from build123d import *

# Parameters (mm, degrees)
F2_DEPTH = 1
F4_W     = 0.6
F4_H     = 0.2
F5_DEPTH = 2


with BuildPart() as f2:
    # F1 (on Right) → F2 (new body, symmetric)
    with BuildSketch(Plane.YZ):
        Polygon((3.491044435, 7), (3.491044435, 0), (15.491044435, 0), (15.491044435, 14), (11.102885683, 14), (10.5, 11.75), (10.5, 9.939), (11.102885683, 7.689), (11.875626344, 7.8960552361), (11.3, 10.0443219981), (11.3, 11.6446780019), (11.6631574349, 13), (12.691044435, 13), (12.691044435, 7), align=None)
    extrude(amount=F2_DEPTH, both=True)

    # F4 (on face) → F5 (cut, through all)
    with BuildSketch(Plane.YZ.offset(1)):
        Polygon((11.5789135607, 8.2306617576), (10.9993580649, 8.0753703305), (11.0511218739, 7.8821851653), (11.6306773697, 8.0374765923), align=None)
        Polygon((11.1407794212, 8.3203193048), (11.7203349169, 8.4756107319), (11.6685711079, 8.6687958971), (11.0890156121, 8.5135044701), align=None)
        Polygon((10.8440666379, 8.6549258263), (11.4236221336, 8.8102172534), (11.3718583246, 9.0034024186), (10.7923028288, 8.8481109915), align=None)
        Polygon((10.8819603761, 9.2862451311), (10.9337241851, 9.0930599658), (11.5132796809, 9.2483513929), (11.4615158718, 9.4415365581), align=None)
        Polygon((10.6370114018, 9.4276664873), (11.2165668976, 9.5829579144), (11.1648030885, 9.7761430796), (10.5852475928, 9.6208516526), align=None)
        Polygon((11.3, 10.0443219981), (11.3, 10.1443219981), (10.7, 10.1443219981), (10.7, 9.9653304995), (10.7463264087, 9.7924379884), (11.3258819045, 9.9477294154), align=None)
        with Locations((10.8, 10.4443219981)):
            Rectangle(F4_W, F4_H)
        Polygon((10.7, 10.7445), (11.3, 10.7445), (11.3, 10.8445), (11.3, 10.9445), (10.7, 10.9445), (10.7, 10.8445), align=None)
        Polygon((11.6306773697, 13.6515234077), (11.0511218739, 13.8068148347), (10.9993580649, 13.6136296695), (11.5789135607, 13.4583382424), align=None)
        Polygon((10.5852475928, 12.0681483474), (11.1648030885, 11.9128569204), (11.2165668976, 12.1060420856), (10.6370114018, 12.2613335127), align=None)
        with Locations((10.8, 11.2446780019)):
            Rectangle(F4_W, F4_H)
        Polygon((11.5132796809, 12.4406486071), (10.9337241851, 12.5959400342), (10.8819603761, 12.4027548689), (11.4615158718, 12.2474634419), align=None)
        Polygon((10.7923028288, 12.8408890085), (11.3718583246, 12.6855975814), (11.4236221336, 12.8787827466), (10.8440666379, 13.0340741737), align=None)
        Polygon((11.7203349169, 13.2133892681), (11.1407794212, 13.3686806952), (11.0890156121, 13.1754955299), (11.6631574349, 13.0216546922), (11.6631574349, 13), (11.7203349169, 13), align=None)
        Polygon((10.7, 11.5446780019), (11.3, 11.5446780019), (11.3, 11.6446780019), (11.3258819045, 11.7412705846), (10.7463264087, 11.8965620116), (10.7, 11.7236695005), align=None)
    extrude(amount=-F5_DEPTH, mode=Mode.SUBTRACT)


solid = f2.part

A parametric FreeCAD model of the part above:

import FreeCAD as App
import Part
import Sketcher

V = App.Vector
Q = App.Units.Quantity


def add_polygon(sketch, points):
    """Adds a closed chain of lines whose ends are joined by coincident constraints."""
    first, n = sketch.GeometryCount, len(points)
    for a, b in zip(points, points[1:] + points[:1]):
        sketch.addGeometry(Part.LineSegment(App.Vector(*a, 0), App.Vector(*b, 0)), False)
    for i in range(n):
        sketch.addConstraint(Sketcher.Constraint("Coincident", first + i, 2, first + (i + 1) % n, 1))

doc = App.newDocument("Part")
body = doc.addObject("PartDesign::Body", "Body")

# Sketch on YZ plane
sketch1 = body.newObject("Sketcher::SketchObject", "Sketch")
sketch1.AttachmentSupport = (doc.getObject("YZ_Plane"), [""])
sketch1.MapMode = "FlatFace"
add_polygon(sketch1, [(3.5, 7), (3.5, 0), (15.5, 0), (15.5, 14), (11.1, 14), (10.5, 11.8), (10.5, 9.9), (11.1, 7.7), (11.9, 7.9), (11.3, 10), (11.3, 11.6), (11.7, 13), (12.7, 13), (12.7, 7)])  # lines 0-13
sketch1.addConstraint(Sketcher.Constraint("Vertical", 0))
sketch1.addConstraint(Sketcher.Constraint("Horizontal", 1))
sketch1.addConstraint(Sketcher.Constraint("Vertical", 2))
sketch1.addConstraint(Sketcher.Constraint("Horizontal", 3))
sketch1.addConstraint(Sketcher.Constraint("Vertical", 5))
sketch1.addConstraint(Sketcher.Constraint("Vertical", 9))
sketch1.addConstraint(Sketcher.Constraint("Horizontal", 11))
sketch1.addConstraint(Sketcher.Constraint("Vertical", 12))
sketch1.addConstraint(Sketcher.Constraint("Horizontal", 13))
sketch1.addConstraint(Sketcher.Constraint("PointOnObject", 0, 2, -1))
sketch1.addConstraint(Sketcher.Constraint("Perpendicular", 6, 7))
sketch1.addConstraint(Sketcher.Constraint("Perpendicular", 7, 8))
sketch1.addConstraint(Sketcher.Constraint("Parallel", 4, 10))
sketch1.addConstraint(Sketcher.Constraint("Vertical", 3, 2, 6, 2))
sketch1.addConstraint(Sketcher.Constraint("Equal", 4, 6))
sketch1.addConstraint(Sketcher.Constraint("DistanceX", 1, 1, 1, 2, 12.0))
sketch1.addConstraint(Sketcher.Constraint("DistanceY", 0, 2, 0, 1, 7.0))
sketch1.addConstraint(Sketcher.Constraint("DistanceY", 2, 1, 2, 2, 14.0))
sketch1.addConstraint(Sketcher.Constraint("DistanceY", 12, 2, 12, 1, 6.0))
sketch1.addConstraint(Sketcher.Constraint("Angle", 4, Q("-105 deg")))
sketch1.addConstraint(Sketcher.Constraint("DistanceX", 13, 2, 13, 1, 9.2))
sketch1.addConstraint(Sketcher.Constraint("Distance", 7, 0.8))
sketch1.addConstraint(Sketcher.Constraint("DistanceX", -1, 1, 4, 2, 10.5))
sketch1.addConstraint(Sketcher.Constraint("DistanceX", -1, 1, 8, 2, 11.3))
sketch1.addConstraint(Sketcher.Constraint("DistanceY", 5, 2, 5, 1, 1.811))
sketch1.addConstraint(Sketcher.Constraint("DistanceY", -1, 1, 4, 2, 11.75))
sketch1.addConstraint(Sketcher.Constraint("DistanceX", 3, 2, 3, 1, 4.388159))
sketch1.addConstraint(Sketcher.Constraint("DistanceX", 11, 1, 11, 2, 1.027887))
pad1 = body.newObject("PartDesign::Pad", "Pad")
pad1.Profile = sketch1
pad1.Length = 2
pad1.Midplane = True

# Sketch on YZ plane
sketch2 = body.newObject("Sketcher::SketchObject", "Sketch001")
sketch2.AttachmentSupport = (doc.getObject("YZ_Plane"), [""])
sketch2.MapMode = "FlatFace"
sketch2.AttachmentOffset = App.Placement(V(0, 0, 1), App.Rotation())
add_polygon(sketch2, [(11.579, 8.231), (10.999, 8.075), (11.051, 7.882), (11.631, 8.037)])  # lines 0-3
add_polygon(sketch2, [(11.141, 8.32), (11.72, 8.476), (11.669, 8.669), (11.089, 8.514)])  # lines 4-7
add_polygon(sketch2, [(10.844, 8.655), (11.424, 8.81), (11.372, 9.003), (10.792, 8.848)])  # lines 8-11
add_polygon(sketch2, [(10.882, 9.286), (10.934, 9.093), (11.513, 9.248), (11.462, 9.442)])  # lines 12-15
add_polygon(sketch2, [(10.637, 9.428), (11.217, 9.583), (11.165, 9.776), (10.585, 9.621)])  # lines 16-19
add_polygon(sketch2, [(11.3, 10.044), (11.3, 10.144), (10.7, 10.144), (10.7, 9.965), (10.746, 9.792), (11.326, 9.948)])  # lines 20-25
add_polygon(sketch2, [(10.5, 10.544), (10.5, 10.344), (11.1, 10.344), (11.1, 10.544)])  # lines 26-29
add_polygon(sketch2, [(10.7, 10.745), (11.3, 10.745), (11.3, 10.944), (10.7, 10.944)])  # lines 30-33
add_polygon(sketch2, [(11.631, 13.652), (11.051, 13.807), (10.999, 13.614), (11.579, 13.458)])  # lines 34-37
add_polygon(sketch2, [(10.585, 12.068), (11.165, 11.913), (11.217, 12.106), (10.637, 12.261)])  # lines 38-41
add_polygon(sketch2, [(10.5, 11.345), (10.5, 11.145), (11.1, 11.145), (11.1, 11.345)])  # lines 42-45
add_polygon(sketch2, [(11.513, 12.441), (10.934, 12.596), (10.882, 12.403), (11.462, 12.247)])  # lines 46-49
add_polygon(sketch2, [(10.792, 12.841), (11.372, 12.686), (11.424, 12.879), (10.844, 13.034)])  # lines 50-53
add_polygon(sketch2, [(11.72, 13.213), (11.141, 13.369), (11.089, 13.175), (11.663, 13.022), (11.663, 13), (11.72, 13)])  # lines 54-59
add_polygon(sketch2, [(10.7, 11.545), (11.3, 11.545), (11.3, 11.645), (11.326, 11.741), (10.746, 11.897), (10.7, 11.724)])  # lines 60-65
sketch2.addConstraint(Sketcher.Constraint("Vertical", 20))
sketch2.addConstraint(Sketcher.Constraint("Horizontal", 21))
sketch2.addConstraint(Sketcher.Constraint("Vertical", 22))
sketch2.addConstraint(Sketcher.Constraint("Vertical", 26))
sketch2.addConstraint(Sketcher.Constraint("Horizontal", 27))
sketch2.addConstraint(Sketcher.Constraint("Vertical", 28))
sketch2.addConstraint(Sketcher.Constraint("Horizontal", 29))
sketch2.addConstraint(Sketcher.Constraint("Horizontal", 30))
sketch2.addConstraint(Sketcher.Constraint("Vertical", 31))
sketch2.addConstraint(Sketcher.Constraint("Horizontal", 32))
sketch2.addConstraint(Sketcher.Constraint("Vertical", 33))
sketch2.addConstraint(Sketcher.Constraint("Vertical", 42))
sketch2.addConstraint(Sketcher.Constraint("Horizontal", 43))
sketch2.addConstraint(Sketcher.Constraint("Vertical", 44))
sketch2.addConstraint(Sketcher.Constraint("Horizontal", 45))
sketch2.addConstraint(Sketcher.Constraint("Vertical", 57))
sketch2.addConstraint(Sketcher.Constraint("Horizontal", 58))
sketch2.addConstraint(Sketcher.Constraint("Vertical", 59))
sketch2.addConstraint(Sketcher.Constraint("Horizontal", 60))
sketch2.addConstraint(Sketcher.Constraint("Vertical", 61))
sketch2.addConstraint(Sketcher.Constraint("Vertical", 65))
sketch2.addConstraint(Sketcher.Constraint("Perpendicular", 0, 1))
sketch2.addConstraint(Sketcher.Constraint("Perpendicular", 1, 2))
sketch2.addConstraint(Sketcher.Constraint("Perpendicular", 2, 3))
sketch2.addConstraint(Sketcher.Constraint("Perpendicular", 3, 4))
sketch2.addConstraint(Sketcher.Constraint("Perpendicular", 4, 5))
sketch2.addConstraint(Sketcher.Constraint("Perpendicular", 5, 6))
sketch2.addConstraint(Sketcher.Constraint("Perpendicular", 6, 7))
sketch2.addConstraint(Sketcher.Constraint("Perpendicular", 7, 8))
sketch2.addConstraint(Sketcher.Constraint("Perpendicular", 8, 9))
sketch2.addConstraint(Sketcher.Constraint("Perpendicular", 9, 10))
sketch2.addConstraint(Sketcher.Constraint("Perpendicular", 10, 11))
sketch2.addConstraint(Sketcher.Constraint("Parallel", 11, 12))
sketch2.addConstraint(Sketcher.Constraint("Perpendicular", 12, 13))
sketch2.addConstraint(Sketcher.Constraint("Perpendicular", 13, 14))
sketch2.addConstraint(Sketcher.Constraint("Perpendicular", 14, 15))
sketch2.addConstraint(Sketcher.Constraint("Parallel", 15, 16))
sketch2.addConstraint(Sketcher.Constraint("Perpendicular", 16, 17))
sketch2.addConstraint(Sketcher.Constraint("Perpendicular", 17, 18))
sketch2.addConstraint(Sketcher.Constraint("Perpendicular", 18, 19))
sketch2.addConstraint(Sketcher.Constraint("Parallel", 19, 23))
sketch2.addConstraint(Sketcher.Constraint("Perpendicular", 23, 24))
sketch2.addConstraint(Sketcher.Constraint("Perpendicular", 24, 25))
sketch2.addConstraint(Sketcher.Constraint("Perpendicular", 34, 35))
sketch2.addConstraint(Sketcher.Constraint("Perpendicular", 35, 36))
sketch2.addConstraint(Sketcher.Constraint("Perpendicular", 36, 37))
sketch2.addConstraint(Sketcher.Constraint("Perpendicular", 37, 38))
sketch2.addConstraint(Sketcher.Constraint("Perpendicular", 38, 39))
sketch2.addConstraint(Sketcher.Constraint("Perpendicular", 39, 40))
sketch2.addConstraint(Sketcher.Constraint("Perpendicular", 40, 41))
sketch2.addConstraint(Sketcher.Constraint("Perpendicular", 41, 46))
sketch2.addConstraint(Sketcher.Constraint("Perpendicular", 46, 47))
sketch2.addConstraint(Sketcher.Constraint("Perpendicular", 47, 48))
sketch2.addConstraint(Sketcher.Constraint("Perpendicular", 48, 49))
sketch2.addConstraint(Sketcher.Constraint("Perpendicular", 49, 50))
sketch2.addConstraint(Sketcher.Constraint("Perpendicular", 50, 51))
sketch2.addConstraint(Sketcher.Constraint("Perpendicular", 51, 52))
sketch2.addConstraint(Sketcher.Constraint("Perpendicular", 52, 53))
sketch2.addConstraint(Sketcher.Constraint("Perpendicular", 53, 54))
sketch2.addConstraint(Sketcher.Constraint("Perpendicular", 54, 55))
sketch2.addConstraint(Sketcher.Constraint("Perpendicular", 55, 56))
sketch2.addConstraint(Sketcher.Constraint("Perpendicular", 56, 62))
sketch2.addConstraint(Sketcher.Constraint("Perpendicular", 62, 63))
sketch2.addConstraint(Sketcher.Constraint("Perpendicular", 63, 64))
sketch2.addConstraint(Sketcher.Constraint("Vertical", 25, 2, 30, 2))
sketch2.addConstraint(Sketcher.Constraint("Vertical", 22, 2, 32, 2))
sketch2.addConstraint(Sketcher.Constraint("Vertical", 1, 2, 34, 2))
sketch2.addConstraint(Sketcher.Constraint("Vertical", 0, 2, 35, 2))
sketch2.addConstraint(Sketcher.Constraint("Vertical", 3, 2, 36, 2))
sketch2.addConstraint(Sketcher.Constraint("Vertical", 17, 2, 38, 2))
sketch2.addConstraint(Sketcher.Constraint("Vertical", 16, 2, 39, 2))
sketch2.addConstraint(Sketcher.Constraint("Vertical", 19, 2, 40, 2))
sketch2.addConstraint(Sketcher.Constraint("Vertical", 29, 2, 42, 2))
sketch2.addConstraint(Sketcher.Constraint("Vertical", 28, 2, 43, 2))
sketch2.addConstraint(Sketcher.Constraint("Vertical", 12, 2, 46, 2))
sketch2.addConstraint(Sketcher.Constraint("Vertical", 15, 2, 47, 2))
sketch2.addConstraint(Sketcher.Constraint("Vertical", 14, 2, 48, 2))
sketch2.addConstraint(Sketcher.Constraint("Vertical", 9, 2, 50, 2))
sketch2.addConstraint(Sketcher.Constraint("Vertical", 8, 2, 51, 2))
sketch2.addConstraint(Sketcher.Constraint("Vertical", 11, 2, 52, 2))
sketch2.addConstraint(Sketcher.Constraint("Vertical", 7, 2, 54, 2))
sketch2.addConstraint(Sketcher.Constraint("Vertical", 6, 2, 55, 2))
sketch2.addConstraint(Sketcher.Constraint("Vertical", 4, 2, 58, 2))
sketch2.addConstraint(Sketcher.Constraint("Vertical", 31, 2, 60, 2))
sketch2.addConstraint(Sketcher.Constraint("Vertical", 24, 2, 62, 2))
sketch2.addConstraint(Sketcher.Constraint("Vertical", 23, 2, 63, 2))
sketch2.addConstraint(Sketcher.Constraint("Vertical", 33, 2, 64, 2))
sketch2.addConstraint(Sketcher.Constraint("Equal", 21, 27))
sketch2.addConstraint(Sketcher.Constraint("Equal", 28, 31))
sketch2.addConstraint(Sketcher.Constraint("Equal", 33, 42))
sketch2.addConstraint(Sketcher.Constraint("Equal", 20, 61))
sketch2.addConstraint(Sketcher.Constraint("Equal", 22, 65))
sketch2.addConstraint(Sketcher.Constraint("Equal", 2, 4))
sketch2.addConstraint(Sketcher.Constraint("Equal", 3, 5))
sketch2.addConstraint(Sketcher.Constraint("Equal", 6, 8))
sketch2.addConstraint(Sketcher.Constraint("Equal", 7, 9))
sketch2.addConstraint(Sketcher.Constraint("Equal", 11, 12))
sketch2.addConstraint(Sketcher.Constraint("Equal", 10, 13))
sketch2.addConstraint(Sketcher.Constraint("Equal", 15, 16))
sketch2.addConstraint(Sketcher.Constraint("Equal", 14, 17))
sketch2.addConstraint(Sketcher.Constraint("Equal", 18, 24))
sketch2.addConstraint(Sketcher.Constraint("Angle", 0, Q("-165 deg")))
sketch2.addConstraint(Sketcher.Constraint("DistanceX", 21, 2, 21, 1, 0.6))
sketch2.addConstraint(Sketcher.Constraint("DistanceY", 20, 1, 20, 2, 0.1))
sketch2.addConstraint(Sketcher.Constraint("DistanceY", 26, 2, 26, 1, 0.2))
sketch2.addConstraint(Sketcher.Constraint("DistanceY", -1, 1, 57, 2, 13.0))
sketch2.addConstraint(Sketcher.Constraint("Distance", 0, 0.6))
sketch2.addConstraint(Sketcher.Constraint("Distance", 1, 0.2))
sketch2.addConstraint(Sketcher.Constraint("Distance", 25, 0.1))
sketch2.addConstraint(Sketcher.Constraint("DistanceX", -1, 1, 20, 2, 11.3))
sketch2.addConstraint(Sketcher.Constraint("DistanceX", -1, 1, 26, 2, 10.5))
sketch2.addConstraint(Sketcher.Constraint("DistanceY", 59, 1, 59, 2, 0.213389))
sketch2.addConstraint(Sketcher.Constraint("DistanceY", -1, 1, 30, 2, 10.7445))
sketch2.addConstraint(Sketcher.Constraint("DistanceX", 58, 1, 58, 2, 0.057177))
sketch2.addConstraint(Sketcher.Constraint("DistanceX", -1, 1, 0, 2, 10.999358))
sketch2.addConstraint(Sketcher.Constraint("DistanceY", -1, 1, 0, 2, 8.07537))
sketch2.addConstraint(Sketcher.Constraint("DistanceY", -1, 1, 4, 2, 8.475611))
sketch2.addConstraint(Sketcher.Constraint("DistanceX", -1, 1, 5, 2, 11.668571))
sketch2.addConstraint(Sketcher.Constraint("DistanceX", -1, 1, 9, 2, 11.371858))
sketch2.addConstraint(Sketcher.Constraint("DistanceY", -1, 1, 10, 2, 8.848111))
sketch2.addConstraint(Sketcher.Constraint("DistanceY", -1, 1, 12, 2, 9.09306))
sketch2.addConstraint(Sketcher.Constraint("DistanceX", -1, 1, 13, 2, 11.51328))
sketch2.addConstraint(Sketcher.Constraint("DistanceY", -1, 1, 18, 2, 9.620852))
sketch2.addConstraint(Sketcher.Constraint("DistanceX", -1, 1, 19, 2, 10.637011))
sketch2.addConstraint(Sketcher.Constraint("DistanceY", -1, 1, 20, 2, 10.144322))
sketch2.addConstraint(Sketcher.Constraint("DistanceY", -1, 1, 26, 2, 10.344322))
sketch2.addConstraint(Sketcher.Constraint("DistanceY", -1, 1, 35, 2, 13.61363))
sketch2.addConstraint(Sketcher.Constraint("DistanceY", -1, 1, 41, 2, 12.068148))
sketch2.addConstraint(Sketcher.Constraint("DistanceY", -1, 1, 42, 2, 11.144678))
sketch2.addConstraint(Sketcher.Constraint("DistanceY", -1, 1, 46, 2, 12.59594))
sketch2.addConstraint(Sketcher.Constraint("DistanceY", -1, 1, 53, 2, 12.840889))
sketch2.addConstraint(Sketcher.Constraint("DistanceY", -1, 1, 60, 2, 11.544678))
pocket1 = body.newObject("PartDesign::Pocket", "Pocket")
pocket1.Profile = sketch2
pocket1.Type = "ThroughAll"

doc.recompute()
